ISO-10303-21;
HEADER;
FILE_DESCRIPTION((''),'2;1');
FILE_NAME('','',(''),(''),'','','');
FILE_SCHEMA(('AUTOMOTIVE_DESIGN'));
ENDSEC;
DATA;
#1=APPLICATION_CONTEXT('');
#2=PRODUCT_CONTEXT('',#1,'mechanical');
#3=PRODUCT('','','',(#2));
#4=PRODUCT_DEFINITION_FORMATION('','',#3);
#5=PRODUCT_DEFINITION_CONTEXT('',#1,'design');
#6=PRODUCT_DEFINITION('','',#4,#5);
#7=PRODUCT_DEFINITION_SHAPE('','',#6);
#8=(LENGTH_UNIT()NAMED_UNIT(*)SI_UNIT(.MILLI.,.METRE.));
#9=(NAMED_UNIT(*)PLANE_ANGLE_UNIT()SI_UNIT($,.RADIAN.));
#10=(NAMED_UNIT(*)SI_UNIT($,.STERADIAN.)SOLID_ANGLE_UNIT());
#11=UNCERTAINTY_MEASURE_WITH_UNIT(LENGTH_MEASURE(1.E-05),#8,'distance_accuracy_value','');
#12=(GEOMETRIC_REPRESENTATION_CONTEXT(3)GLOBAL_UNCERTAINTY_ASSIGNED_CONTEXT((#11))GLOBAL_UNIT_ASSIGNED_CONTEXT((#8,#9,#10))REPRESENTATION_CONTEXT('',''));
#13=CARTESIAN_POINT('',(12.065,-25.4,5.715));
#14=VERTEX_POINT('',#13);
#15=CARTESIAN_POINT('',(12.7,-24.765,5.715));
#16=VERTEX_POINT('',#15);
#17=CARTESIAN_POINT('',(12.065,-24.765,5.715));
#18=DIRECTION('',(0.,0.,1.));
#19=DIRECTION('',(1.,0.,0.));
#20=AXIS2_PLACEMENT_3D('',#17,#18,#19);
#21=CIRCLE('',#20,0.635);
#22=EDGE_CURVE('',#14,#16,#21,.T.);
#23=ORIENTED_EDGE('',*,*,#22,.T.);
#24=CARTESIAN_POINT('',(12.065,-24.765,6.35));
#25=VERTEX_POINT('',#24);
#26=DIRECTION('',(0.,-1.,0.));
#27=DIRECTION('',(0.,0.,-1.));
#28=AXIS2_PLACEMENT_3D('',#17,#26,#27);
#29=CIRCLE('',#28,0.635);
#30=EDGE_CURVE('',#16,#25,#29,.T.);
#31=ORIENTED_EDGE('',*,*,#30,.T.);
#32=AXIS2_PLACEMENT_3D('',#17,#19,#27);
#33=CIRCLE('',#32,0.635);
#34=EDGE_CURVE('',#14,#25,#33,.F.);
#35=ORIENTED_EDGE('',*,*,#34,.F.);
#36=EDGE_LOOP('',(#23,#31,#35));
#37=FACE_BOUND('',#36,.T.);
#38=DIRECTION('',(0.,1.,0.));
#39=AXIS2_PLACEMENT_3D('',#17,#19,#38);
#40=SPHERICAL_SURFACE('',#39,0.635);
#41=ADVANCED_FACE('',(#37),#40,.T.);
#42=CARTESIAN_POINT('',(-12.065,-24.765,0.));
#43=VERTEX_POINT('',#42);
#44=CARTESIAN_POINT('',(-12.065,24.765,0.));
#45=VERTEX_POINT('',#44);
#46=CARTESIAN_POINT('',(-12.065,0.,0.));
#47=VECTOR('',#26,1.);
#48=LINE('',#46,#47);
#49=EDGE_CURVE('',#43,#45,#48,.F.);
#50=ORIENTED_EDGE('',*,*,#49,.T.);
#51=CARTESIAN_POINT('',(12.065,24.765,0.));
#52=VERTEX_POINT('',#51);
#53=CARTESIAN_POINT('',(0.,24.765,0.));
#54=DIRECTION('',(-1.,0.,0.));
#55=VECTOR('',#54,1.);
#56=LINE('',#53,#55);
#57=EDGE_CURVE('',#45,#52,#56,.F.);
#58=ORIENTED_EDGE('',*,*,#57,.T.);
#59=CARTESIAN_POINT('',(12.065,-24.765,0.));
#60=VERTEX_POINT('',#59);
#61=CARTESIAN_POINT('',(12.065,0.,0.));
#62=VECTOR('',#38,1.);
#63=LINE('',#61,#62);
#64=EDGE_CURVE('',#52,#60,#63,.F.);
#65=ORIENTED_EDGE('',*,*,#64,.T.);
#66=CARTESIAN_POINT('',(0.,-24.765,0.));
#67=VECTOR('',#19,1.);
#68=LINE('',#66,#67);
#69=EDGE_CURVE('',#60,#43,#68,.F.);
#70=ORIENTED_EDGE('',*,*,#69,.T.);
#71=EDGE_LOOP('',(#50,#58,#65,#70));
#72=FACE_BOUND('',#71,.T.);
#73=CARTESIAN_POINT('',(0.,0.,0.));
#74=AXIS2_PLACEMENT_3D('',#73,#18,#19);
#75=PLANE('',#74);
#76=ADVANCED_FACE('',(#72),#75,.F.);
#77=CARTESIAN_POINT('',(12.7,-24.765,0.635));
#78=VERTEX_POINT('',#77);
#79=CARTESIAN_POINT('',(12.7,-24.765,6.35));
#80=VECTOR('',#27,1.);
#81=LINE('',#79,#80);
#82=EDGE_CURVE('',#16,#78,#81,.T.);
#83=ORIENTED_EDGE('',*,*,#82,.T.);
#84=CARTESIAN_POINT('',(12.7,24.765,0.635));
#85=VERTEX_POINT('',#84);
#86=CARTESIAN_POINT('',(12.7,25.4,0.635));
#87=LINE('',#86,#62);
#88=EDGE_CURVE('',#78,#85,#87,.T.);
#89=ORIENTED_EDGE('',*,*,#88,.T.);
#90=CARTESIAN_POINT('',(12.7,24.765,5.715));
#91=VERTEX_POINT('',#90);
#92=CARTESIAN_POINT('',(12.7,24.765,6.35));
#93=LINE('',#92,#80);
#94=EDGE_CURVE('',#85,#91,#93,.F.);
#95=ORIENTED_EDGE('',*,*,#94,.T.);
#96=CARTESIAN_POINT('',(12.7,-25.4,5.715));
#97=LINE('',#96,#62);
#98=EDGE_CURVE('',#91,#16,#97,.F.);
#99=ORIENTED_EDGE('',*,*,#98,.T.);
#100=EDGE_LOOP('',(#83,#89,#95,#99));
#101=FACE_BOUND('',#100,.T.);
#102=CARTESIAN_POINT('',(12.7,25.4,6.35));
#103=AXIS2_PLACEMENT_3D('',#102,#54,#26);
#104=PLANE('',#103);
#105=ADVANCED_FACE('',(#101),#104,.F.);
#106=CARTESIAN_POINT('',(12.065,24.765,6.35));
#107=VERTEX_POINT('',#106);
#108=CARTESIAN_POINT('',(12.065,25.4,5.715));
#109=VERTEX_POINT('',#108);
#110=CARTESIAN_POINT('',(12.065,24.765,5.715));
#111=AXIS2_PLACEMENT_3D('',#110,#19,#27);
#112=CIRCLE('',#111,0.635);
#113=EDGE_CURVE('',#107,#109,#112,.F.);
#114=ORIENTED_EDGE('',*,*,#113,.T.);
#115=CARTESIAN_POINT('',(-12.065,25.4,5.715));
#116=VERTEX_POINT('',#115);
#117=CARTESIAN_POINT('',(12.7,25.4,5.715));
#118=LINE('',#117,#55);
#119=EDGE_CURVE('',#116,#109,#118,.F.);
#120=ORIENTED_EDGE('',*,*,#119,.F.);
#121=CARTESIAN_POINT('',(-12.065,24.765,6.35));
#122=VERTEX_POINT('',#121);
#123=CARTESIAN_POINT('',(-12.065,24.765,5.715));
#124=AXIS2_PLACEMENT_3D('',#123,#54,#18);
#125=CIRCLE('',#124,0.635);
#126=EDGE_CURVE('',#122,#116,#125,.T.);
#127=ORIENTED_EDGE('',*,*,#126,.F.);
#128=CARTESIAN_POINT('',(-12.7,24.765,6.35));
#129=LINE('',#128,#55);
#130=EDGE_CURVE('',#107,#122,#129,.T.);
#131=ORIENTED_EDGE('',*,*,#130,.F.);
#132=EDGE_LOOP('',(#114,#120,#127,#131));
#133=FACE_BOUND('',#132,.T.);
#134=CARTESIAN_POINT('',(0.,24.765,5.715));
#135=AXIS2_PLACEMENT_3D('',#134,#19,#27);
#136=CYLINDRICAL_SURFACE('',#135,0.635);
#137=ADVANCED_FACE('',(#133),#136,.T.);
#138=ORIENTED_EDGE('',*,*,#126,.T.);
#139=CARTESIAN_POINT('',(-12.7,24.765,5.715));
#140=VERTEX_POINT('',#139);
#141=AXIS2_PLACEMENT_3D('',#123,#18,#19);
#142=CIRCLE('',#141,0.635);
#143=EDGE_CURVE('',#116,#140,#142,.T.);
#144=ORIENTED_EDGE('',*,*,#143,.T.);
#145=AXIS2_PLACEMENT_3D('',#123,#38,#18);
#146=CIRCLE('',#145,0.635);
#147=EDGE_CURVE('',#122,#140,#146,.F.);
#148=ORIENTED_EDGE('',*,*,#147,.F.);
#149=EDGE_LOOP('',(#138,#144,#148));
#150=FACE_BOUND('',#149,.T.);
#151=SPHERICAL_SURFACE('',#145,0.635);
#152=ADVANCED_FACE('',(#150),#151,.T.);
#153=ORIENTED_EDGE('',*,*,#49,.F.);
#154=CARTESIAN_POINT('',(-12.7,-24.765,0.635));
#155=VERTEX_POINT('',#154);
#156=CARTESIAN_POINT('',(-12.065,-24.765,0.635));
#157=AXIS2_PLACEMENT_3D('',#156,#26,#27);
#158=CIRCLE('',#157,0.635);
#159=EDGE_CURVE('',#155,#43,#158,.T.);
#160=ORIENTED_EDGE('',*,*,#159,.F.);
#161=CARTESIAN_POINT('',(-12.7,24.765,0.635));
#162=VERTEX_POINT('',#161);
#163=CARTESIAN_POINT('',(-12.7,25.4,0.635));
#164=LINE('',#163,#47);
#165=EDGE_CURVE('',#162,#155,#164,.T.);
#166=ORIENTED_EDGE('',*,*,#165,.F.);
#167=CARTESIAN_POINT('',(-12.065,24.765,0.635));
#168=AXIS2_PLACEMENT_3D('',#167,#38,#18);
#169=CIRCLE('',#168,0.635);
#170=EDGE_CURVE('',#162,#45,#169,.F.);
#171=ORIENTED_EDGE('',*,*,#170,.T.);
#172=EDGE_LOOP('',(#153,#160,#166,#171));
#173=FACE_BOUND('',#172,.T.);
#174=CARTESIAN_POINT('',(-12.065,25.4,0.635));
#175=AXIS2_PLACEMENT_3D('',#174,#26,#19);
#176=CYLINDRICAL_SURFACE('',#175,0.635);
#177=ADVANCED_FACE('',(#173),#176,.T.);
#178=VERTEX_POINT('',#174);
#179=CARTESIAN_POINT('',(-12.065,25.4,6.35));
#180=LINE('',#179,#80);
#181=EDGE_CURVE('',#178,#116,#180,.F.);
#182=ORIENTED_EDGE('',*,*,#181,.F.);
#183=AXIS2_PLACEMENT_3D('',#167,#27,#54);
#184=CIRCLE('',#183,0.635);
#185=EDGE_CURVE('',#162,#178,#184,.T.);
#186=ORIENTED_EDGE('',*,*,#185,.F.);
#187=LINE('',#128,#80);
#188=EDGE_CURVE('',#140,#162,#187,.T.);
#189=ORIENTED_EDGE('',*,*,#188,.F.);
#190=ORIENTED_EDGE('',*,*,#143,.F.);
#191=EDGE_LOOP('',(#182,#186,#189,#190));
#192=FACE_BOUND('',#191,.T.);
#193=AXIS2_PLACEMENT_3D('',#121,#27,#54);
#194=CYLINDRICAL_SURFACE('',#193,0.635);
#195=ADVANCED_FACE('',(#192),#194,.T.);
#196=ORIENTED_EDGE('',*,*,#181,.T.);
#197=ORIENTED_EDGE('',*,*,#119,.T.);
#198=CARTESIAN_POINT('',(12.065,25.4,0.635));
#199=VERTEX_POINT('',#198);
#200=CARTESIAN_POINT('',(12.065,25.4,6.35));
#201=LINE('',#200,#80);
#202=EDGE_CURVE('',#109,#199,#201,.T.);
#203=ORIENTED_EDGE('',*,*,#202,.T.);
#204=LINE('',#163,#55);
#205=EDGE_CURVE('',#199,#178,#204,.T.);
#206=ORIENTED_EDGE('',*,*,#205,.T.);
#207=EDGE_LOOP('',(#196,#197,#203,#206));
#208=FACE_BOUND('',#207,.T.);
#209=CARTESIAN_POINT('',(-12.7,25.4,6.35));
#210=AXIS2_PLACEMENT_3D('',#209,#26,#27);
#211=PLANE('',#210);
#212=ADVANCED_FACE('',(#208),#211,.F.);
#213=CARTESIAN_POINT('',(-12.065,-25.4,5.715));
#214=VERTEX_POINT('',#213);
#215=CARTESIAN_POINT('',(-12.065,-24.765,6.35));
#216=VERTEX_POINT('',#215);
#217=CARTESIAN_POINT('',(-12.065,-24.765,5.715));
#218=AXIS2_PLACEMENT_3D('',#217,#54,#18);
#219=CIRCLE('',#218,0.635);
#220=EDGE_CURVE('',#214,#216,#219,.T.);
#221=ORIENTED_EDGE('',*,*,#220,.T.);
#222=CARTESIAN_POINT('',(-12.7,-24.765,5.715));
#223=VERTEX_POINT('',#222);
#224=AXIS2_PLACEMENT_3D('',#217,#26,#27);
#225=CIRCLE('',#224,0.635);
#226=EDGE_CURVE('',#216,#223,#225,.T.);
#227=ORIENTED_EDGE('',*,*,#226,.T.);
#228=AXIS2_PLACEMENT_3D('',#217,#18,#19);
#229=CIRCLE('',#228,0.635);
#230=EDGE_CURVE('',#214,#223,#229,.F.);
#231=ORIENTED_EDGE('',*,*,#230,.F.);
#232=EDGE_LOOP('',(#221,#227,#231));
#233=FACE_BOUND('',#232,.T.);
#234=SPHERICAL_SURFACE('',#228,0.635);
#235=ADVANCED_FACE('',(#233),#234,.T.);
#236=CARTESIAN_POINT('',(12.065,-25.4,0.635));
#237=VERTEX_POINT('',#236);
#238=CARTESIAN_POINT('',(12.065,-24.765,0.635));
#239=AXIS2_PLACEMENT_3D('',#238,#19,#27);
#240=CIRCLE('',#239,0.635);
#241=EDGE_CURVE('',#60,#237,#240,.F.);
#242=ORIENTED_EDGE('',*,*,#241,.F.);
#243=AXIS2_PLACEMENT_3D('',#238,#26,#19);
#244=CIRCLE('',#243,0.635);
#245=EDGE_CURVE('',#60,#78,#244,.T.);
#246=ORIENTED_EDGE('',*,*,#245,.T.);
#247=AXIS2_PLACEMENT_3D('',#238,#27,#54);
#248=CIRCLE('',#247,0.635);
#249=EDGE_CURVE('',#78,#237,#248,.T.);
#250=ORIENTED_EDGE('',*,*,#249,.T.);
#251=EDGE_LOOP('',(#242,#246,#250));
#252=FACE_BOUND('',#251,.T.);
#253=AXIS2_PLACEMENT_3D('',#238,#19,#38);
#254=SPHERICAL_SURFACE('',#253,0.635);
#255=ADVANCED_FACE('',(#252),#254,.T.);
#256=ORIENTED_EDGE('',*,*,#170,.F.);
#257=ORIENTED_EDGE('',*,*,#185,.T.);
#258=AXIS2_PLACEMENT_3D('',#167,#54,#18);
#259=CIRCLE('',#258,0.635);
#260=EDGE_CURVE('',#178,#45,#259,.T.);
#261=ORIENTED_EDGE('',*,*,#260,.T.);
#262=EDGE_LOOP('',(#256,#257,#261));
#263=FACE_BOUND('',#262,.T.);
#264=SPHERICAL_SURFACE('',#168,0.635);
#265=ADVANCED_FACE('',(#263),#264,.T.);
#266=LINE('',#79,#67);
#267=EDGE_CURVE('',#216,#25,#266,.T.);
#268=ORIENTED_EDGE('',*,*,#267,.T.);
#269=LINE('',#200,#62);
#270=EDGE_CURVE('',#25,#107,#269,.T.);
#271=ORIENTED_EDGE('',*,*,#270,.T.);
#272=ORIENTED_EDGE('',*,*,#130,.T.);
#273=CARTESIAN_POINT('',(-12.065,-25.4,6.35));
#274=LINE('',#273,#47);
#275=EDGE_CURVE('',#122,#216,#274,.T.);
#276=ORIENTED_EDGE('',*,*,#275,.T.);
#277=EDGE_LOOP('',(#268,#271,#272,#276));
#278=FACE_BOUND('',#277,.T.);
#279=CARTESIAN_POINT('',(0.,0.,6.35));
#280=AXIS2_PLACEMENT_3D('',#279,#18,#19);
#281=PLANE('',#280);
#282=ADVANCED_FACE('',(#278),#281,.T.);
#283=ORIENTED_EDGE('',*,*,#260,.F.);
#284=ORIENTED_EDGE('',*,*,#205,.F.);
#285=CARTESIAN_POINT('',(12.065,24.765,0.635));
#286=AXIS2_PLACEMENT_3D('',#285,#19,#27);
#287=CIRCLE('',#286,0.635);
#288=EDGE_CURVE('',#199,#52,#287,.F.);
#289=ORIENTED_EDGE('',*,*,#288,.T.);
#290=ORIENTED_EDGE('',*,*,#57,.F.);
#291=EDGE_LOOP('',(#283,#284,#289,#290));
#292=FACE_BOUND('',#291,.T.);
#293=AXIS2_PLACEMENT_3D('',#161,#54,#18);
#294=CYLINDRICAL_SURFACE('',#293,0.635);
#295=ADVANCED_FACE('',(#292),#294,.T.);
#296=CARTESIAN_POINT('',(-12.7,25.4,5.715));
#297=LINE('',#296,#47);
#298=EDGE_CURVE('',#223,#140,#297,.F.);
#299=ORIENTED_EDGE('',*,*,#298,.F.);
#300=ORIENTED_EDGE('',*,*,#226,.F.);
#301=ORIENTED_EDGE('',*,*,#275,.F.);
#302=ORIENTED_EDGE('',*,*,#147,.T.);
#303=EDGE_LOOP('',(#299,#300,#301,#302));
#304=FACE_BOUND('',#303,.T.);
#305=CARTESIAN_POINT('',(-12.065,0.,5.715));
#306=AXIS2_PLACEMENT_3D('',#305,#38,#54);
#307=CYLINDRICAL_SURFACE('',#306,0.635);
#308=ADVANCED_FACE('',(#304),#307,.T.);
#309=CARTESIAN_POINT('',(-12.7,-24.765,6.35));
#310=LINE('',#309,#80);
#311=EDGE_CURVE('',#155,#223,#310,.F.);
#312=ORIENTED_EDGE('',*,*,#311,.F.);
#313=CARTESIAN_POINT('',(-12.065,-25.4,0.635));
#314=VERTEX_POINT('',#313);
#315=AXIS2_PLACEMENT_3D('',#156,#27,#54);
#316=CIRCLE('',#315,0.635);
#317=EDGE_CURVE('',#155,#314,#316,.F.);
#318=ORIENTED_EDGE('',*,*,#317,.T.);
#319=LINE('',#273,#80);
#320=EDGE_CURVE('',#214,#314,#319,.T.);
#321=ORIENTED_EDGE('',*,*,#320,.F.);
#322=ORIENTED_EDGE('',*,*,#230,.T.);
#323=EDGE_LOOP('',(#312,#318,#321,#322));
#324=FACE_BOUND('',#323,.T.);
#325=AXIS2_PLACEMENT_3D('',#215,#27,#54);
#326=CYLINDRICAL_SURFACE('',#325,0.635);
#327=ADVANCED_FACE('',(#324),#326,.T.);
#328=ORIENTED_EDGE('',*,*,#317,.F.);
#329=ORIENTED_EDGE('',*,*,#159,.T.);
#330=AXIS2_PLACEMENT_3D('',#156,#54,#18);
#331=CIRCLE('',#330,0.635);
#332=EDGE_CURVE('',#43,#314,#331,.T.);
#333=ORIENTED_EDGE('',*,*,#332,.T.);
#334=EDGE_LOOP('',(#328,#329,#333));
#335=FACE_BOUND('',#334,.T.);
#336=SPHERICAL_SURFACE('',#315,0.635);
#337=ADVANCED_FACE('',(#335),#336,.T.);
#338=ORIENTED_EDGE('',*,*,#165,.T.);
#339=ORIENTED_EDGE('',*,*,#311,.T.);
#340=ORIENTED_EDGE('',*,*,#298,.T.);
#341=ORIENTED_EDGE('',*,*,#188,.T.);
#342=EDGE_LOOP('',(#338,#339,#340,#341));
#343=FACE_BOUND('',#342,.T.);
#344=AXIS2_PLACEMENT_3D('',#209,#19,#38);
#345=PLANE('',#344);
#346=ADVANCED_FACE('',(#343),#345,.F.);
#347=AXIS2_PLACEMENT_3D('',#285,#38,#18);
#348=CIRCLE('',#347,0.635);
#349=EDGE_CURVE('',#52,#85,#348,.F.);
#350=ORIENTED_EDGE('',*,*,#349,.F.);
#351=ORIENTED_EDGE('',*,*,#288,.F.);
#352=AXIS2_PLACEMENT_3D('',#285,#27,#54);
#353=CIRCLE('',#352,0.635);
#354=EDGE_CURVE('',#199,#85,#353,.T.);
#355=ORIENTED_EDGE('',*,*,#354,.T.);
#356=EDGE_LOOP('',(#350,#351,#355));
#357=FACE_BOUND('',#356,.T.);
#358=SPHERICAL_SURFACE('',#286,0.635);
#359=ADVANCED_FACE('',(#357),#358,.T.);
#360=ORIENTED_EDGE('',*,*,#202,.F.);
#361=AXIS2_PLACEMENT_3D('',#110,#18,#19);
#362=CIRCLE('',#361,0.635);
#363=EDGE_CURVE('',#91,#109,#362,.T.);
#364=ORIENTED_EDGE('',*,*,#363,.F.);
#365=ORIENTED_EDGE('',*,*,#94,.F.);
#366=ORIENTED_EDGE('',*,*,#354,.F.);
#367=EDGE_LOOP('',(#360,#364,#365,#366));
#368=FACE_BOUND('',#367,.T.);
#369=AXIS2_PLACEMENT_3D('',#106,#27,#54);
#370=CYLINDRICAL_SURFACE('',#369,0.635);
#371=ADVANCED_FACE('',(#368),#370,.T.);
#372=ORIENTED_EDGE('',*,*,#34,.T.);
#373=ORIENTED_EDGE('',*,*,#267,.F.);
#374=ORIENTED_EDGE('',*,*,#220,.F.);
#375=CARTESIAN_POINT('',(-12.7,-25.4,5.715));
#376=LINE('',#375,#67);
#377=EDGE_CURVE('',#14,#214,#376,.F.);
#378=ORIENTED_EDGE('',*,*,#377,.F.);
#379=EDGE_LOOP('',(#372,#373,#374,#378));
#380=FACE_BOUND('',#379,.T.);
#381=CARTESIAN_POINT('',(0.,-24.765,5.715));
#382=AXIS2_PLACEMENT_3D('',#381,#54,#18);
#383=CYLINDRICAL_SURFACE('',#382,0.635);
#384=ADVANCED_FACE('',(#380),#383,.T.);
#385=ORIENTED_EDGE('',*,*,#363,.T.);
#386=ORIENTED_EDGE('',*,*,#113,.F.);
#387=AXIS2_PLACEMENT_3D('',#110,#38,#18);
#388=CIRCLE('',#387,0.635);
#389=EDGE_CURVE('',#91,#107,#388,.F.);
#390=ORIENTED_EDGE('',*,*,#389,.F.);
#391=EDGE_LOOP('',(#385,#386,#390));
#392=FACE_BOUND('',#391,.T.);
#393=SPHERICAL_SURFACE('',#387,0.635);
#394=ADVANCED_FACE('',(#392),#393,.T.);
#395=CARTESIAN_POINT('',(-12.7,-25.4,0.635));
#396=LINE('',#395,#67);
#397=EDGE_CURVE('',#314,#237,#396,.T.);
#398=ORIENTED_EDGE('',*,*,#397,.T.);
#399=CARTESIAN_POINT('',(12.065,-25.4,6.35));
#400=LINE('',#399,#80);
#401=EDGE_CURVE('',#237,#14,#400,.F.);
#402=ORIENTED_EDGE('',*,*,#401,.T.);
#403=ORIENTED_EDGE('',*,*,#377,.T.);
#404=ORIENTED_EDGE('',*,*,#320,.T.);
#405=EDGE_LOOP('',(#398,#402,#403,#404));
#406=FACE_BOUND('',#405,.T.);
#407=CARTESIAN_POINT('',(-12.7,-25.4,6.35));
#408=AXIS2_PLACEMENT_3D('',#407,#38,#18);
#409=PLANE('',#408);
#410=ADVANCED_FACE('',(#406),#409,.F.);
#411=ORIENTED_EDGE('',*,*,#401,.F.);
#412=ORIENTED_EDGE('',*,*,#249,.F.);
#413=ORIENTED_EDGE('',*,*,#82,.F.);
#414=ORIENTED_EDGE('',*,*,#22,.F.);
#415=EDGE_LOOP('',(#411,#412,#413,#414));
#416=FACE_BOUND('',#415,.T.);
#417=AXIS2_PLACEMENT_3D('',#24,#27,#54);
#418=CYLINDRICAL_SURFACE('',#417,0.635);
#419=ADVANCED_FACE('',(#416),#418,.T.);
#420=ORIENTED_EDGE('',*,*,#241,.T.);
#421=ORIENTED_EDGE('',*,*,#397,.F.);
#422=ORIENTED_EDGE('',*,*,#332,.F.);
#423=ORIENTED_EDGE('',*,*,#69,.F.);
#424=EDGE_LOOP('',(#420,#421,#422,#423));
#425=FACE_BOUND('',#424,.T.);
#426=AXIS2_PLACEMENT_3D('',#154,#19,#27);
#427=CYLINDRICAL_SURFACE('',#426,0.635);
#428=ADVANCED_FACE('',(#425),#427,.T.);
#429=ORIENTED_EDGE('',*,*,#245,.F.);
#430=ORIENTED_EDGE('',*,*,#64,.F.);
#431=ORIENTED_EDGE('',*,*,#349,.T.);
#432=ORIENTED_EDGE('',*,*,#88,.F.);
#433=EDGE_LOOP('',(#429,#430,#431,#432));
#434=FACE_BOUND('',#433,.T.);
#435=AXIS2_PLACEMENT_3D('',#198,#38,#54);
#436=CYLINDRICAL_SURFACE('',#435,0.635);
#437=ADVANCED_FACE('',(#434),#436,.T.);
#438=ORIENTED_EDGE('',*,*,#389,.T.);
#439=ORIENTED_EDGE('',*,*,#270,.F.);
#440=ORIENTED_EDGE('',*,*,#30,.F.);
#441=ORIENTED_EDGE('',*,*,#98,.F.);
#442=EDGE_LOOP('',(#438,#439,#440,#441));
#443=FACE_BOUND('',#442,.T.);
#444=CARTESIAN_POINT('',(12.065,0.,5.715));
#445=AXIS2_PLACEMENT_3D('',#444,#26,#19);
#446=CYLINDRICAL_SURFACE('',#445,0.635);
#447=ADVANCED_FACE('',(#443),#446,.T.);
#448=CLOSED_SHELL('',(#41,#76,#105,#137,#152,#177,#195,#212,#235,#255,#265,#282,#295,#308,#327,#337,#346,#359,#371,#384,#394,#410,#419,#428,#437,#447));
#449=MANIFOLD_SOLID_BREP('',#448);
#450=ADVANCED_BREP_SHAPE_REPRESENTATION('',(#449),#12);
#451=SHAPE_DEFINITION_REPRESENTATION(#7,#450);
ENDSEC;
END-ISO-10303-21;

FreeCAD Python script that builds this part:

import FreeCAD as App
import Part
import Sketcher
Q = App.Units.Quantity

doc = App.newDocument("Part")
params = doc.addObject("Spreadsheet::Sheet", "Params")
for row, (alias, value) in enumerate([
    ("sketch1_width", "1 in"),
    ("sketch1_height", "2 in"),
    ("pad1_length", "0.25 in"),
    ("fillet_radius", "0.025 in"),
], start=1):
    params.set(f"A{row}", alias)
    params.set(f"B{row}", "=" + value)
    params.setAlias(f"B{row}", alias)

body = doc.addObject("PartDesign::Body", "Body")

# Sketch on XY plane
sketch1 = body.newObject("Sketcher::SketchObject", "Sketch")
sketch1.AttachmentSupport = (doc.getObject("XY_Plane"), [""])
sketch1.MapMode = "FlatFace"
sketch1.addGeometry(Part.LineSegment(App.Vector(-13, 25, 0), App.Vector(-13, -25, 0)), False)
sketch1.addGeometry(Part.LineSegment(App.Vector(-13, -25, 0), App.Vector(13, -25, 0)), False)
sketch1.addGeometry(Part.LineSegment(App.Vector(13, -25, 0), App.Vector(13, 25, 0)), False)
sketch1.addGeometry(Part.LineSegment(App.Vector(13, 25, 0), App.Vector(-13, 25, 0)), False)
sketch1.addConstraint(Sketcher.Constraint("Coincident", 0, 2, 1, 1))
sketch1.addConstraint(Sketcher.Constraint("Coincident", 1, 2, 2, 1))
sketch1.addConstraint(Sketcher.Constraint("Coincident", 2, 2, 3, 1))
sketch1.addConstraint(Sketcher.Constraint("Coincident", 3, 2, 0, 1))
sketch1.addConstraint(Sketcher.Constraint("Vertical", 0))
sketch1.addConstraint(Sketcher.Constraint("Horizontal", 1))
sketch1.addConstraint(Sketcher.Constraint("Vertical", 2))
sketch1.addConstraint(Sketcher.Constraint("Horizontal", 3))
sketch1.addConstraint(Sketcher.Constraint("Symmetric", 0, 2, 2, 2, -1, 1))
sketch1.addConstraint(Sketcher.Constraint("DistanceX", 1, 1, 1, 2, Q("1 in")))
sketch1.addConstraint(Sketcher.Constraint("DistanceY", 0, 2, 0, 1, Q("2 in")))
sketch1.setExpression("Constraints[9]", "Params.sketch1_width")
sketch1.setExpression("Constraints[10]", "Params.sketch1_height")
pad1 = body.newObject("PartDesign::Pad", "Pad")
pad1.Profile = sketch1
pad1.setExpression("Length", "Params.pad1_length")
doc.recompute()

fillet = body.newObject("PartDesign::Fillet", "Fillet")
fillet.Base = (pad1, ["Edge1"])
fillet.UseAllEdges = True
fillet.setExpression("Radius", "Params.fillet_radius")

doc.recompute()
